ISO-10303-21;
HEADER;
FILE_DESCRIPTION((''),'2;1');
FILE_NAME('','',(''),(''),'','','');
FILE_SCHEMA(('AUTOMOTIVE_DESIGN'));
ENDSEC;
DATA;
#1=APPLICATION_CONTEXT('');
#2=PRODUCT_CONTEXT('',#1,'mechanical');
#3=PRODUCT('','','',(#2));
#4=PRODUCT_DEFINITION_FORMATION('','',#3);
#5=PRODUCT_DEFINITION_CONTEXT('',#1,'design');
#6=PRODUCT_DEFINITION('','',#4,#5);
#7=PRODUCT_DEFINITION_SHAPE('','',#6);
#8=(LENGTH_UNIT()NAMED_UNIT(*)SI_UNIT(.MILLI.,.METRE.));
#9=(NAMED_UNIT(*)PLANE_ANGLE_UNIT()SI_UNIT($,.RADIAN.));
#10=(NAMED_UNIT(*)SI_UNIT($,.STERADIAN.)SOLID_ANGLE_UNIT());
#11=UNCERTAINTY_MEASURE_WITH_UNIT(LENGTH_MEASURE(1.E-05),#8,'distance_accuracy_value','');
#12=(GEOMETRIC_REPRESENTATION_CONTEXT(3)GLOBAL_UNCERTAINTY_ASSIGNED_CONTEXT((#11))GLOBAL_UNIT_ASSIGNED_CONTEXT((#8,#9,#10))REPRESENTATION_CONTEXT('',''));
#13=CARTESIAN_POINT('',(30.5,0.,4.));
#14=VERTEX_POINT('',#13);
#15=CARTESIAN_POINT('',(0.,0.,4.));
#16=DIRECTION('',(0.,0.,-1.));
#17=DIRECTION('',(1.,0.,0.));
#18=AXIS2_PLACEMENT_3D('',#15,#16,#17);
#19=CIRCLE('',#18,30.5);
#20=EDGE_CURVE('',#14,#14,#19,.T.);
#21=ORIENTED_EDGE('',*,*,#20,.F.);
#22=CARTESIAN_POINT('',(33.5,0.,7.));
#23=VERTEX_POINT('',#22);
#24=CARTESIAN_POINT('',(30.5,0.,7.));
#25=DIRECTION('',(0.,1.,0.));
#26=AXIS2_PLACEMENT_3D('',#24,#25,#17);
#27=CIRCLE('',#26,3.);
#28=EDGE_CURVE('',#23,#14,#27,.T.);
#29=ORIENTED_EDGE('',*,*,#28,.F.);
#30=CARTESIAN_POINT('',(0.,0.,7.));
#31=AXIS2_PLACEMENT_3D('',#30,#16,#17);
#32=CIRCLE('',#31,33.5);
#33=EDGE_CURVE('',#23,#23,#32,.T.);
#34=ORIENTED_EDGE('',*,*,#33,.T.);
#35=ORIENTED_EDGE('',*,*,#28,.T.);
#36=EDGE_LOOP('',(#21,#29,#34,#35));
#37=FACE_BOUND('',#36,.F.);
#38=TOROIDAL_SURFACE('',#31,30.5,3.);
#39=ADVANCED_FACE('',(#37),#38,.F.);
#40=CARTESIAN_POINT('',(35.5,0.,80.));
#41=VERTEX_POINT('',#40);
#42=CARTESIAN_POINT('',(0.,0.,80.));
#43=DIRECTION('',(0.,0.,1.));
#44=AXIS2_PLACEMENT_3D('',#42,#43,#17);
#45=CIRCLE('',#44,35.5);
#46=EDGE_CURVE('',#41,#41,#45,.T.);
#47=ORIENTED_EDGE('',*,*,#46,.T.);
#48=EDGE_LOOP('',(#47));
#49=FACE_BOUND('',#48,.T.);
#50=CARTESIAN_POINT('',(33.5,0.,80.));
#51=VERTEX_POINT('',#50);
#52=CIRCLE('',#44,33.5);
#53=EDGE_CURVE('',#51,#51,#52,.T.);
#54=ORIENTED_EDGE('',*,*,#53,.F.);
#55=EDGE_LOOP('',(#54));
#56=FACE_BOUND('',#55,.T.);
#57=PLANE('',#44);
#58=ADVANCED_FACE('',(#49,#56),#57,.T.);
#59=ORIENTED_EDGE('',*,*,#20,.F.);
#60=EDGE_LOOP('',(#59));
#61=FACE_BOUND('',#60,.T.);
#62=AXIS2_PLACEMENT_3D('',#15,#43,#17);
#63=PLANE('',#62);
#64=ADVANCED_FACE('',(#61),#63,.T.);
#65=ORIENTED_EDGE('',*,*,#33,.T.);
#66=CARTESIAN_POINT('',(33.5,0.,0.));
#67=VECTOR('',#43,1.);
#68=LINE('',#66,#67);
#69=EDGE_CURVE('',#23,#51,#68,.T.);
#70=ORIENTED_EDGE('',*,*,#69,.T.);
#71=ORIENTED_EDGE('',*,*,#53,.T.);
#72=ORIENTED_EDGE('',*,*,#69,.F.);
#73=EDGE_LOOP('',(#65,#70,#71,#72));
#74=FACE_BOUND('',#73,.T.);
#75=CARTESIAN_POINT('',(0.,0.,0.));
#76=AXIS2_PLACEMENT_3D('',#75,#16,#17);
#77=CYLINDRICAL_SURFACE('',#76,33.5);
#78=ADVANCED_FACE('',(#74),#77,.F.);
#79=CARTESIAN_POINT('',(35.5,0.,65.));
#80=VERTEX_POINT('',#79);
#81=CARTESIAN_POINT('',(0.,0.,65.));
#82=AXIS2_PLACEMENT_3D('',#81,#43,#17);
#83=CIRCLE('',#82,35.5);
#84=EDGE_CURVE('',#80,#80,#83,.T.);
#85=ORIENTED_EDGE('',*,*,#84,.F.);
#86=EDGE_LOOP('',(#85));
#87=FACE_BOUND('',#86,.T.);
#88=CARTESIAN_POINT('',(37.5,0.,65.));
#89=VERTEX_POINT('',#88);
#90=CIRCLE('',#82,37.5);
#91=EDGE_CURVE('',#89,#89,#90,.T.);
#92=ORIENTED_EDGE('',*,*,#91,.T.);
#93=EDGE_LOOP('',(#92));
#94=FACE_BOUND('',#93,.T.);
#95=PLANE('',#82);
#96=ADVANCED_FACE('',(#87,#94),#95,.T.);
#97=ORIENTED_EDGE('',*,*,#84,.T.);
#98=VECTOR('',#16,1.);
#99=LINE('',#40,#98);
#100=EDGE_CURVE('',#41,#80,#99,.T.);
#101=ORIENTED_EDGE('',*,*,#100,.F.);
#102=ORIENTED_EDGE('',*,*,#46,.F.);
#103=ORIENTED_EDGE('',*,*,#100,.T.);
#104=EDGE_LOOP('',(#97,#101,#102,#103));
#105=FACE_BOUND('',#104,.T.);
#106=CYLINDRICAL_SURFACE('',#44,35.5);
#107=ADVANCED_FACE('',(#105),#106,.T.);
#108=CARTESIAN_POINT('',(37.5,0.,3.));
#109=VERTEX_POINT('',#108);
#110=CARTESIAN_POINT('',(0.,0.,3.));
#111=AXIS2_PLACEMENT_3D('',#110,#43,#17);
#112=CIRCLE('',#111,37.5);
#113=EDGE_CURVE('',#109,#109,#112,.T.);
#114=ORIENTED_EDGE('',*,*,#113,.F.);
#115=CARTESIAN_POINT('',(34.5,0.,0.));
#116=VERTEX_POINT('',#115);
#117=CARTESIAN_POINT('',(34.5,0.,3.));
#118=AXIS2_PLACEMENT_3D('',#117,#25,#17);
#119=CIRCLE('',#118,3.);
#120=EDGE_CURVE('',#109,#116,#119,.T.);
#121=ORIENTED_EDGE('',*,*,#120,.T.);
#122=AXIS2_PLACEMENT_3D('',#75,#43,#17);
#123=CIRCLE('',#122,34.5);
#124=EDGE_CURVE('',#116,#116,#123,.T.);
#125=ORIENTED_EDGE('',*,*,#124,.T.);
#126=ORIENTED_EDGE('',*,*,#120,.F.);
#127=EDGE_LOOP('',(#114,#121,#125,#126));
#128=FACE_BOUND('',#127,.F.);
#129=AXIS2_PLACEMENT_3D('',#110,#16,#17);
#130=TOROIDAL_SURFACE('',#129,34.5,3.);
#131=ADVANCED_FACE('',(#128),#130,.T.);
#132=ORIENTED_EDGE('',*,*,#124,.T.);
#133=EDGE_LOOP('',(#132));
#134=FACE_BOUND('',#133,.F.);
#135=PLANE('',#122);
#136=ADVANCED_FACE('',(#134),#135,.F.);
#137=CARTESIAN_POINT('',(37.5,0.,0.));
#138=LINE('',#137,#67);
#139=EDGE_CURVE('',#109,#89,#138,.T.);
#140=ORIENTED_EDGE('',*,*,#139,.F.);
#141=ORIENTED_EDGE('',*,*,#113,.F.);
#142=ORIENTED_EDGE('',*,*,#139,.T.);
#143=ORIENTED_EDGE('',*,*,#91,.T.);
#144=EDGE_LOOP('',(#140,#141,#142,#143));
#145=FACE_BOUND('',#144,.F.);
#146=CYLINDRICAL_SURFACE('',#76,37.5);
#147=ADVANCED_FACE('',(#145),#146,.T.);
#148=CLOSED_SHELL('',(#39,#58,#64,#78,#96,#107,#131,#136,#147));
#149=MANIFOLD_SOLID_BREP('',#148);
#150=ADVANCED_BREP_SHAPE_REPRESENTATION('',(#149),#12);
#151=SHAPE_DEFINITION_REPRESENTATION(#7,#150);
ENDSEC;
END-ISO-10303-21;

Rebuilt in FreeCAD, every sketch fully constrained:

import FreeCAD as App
import Part
import Sketcher
from FreeCAD import Vector
Q = App.Units.Quantity


def edges_at(feature, points):
    """Names of the edges that pass closest to the given points."""
    edges = feature.Shape.Edges
    near = lambda p: min(range(len(edges)), key=lambda i: edges[i].distToShape(Part.Vertex(*p))[0])
    return sorted({f"Edge{near(p) + 1}" for p in points})


def faces_at(feature, points):
    """Names of the faces that lie closest to the given points."""
    faces = feature.Shape.Faces
    near = lambda p: min(range(len(faces)), key=lambda i: faces[i].distToShape(Part.Vertex(*p))[0])
    return sorted({f"Face{near(p) + 1}" for p in points})

doc = App.newDocument("Part")
body = doc.addObject("PartDesign::Body", "Body")

# Sketch on XY plane
sketch1 = body.newObject("Sketcher::SketchObject", "Sketch")
sketch1.AttachmentSupport = (doc.getObject("XY_Plane"), [""])
sketch1.MapMode = "FlatFace"
sketch1.addGeometry(Part.Circle(Vector(0, 0, 0), Vector(0, 0, 1), 37.5), False)
sketch1.addConstraint(Sketcher.Constraint("Coincident", 0, 3, -1, 1))
sketch1.addConstraint(Sketcher.Constraint("Diameter", 0, Q("75 mm")))
pad1 = body.newObject("PartDesign::Pad", "Pad")
pad1.Profile = sketch1
pad1.Length = 80
doc.recompute()

thickness = body.newObject("PartDesign::Thickness", "Thickness")
thickness.Base = (pad1, faces_at(pad1, [(0, 0, 80)]))
thickness.Value = 4
thickness.Reversed = True
thickness.Join = "Arc"

# Sketch on XY plane
sketch2 = body.newObject("Sketcher::SketchObject", "Sketch001")
sketch2.AttachmentSupport = (doc.getObject("XY_Plane"), [""])
sketch2.MapMode = "FlatFace"
sketch2.AttachmentOffset = App.Placement(Vector(0, 0, 80), App.Rotation())
sketch2.addGeometry(Part.Circle(Vector(0, 0, 0), Vector(0, 0, 1), 37.5), False)
sketch2.addGeometry(Part.Circle(Vector(0, 0, 0), Vector(0, 0, 1), 35.5), False)
sketch2.addConstraint(Sketcher.Constraint("Coincident", 0, 3, -1, 1))
sketch2.addConstraint(Sketcher.Constraint("Coincident", 1, 3, -1, 1))
sketch2.addConstraint(Sketcher.Constraint("Diameter", 0, Q("75 mm")))
sketch2.addConstraint(Sketcher.Constraint("Diameter", 1, Q("71 mm")))
pocket1 = body.newObject("PartDesign::Pocket", "Pocket")
pocket1.Profile = sketch2
pocket1.Length = 15
doc.recompute()

fillet = body.newObject("PartDesign::Fillet", "Fillet")
fillet.Base = (pocket1, edges_at(pocket1, [(-37.5, 0, 0), (-33.5, 0, 4)]))
fillet.Radius = 3

doc.recompute()
